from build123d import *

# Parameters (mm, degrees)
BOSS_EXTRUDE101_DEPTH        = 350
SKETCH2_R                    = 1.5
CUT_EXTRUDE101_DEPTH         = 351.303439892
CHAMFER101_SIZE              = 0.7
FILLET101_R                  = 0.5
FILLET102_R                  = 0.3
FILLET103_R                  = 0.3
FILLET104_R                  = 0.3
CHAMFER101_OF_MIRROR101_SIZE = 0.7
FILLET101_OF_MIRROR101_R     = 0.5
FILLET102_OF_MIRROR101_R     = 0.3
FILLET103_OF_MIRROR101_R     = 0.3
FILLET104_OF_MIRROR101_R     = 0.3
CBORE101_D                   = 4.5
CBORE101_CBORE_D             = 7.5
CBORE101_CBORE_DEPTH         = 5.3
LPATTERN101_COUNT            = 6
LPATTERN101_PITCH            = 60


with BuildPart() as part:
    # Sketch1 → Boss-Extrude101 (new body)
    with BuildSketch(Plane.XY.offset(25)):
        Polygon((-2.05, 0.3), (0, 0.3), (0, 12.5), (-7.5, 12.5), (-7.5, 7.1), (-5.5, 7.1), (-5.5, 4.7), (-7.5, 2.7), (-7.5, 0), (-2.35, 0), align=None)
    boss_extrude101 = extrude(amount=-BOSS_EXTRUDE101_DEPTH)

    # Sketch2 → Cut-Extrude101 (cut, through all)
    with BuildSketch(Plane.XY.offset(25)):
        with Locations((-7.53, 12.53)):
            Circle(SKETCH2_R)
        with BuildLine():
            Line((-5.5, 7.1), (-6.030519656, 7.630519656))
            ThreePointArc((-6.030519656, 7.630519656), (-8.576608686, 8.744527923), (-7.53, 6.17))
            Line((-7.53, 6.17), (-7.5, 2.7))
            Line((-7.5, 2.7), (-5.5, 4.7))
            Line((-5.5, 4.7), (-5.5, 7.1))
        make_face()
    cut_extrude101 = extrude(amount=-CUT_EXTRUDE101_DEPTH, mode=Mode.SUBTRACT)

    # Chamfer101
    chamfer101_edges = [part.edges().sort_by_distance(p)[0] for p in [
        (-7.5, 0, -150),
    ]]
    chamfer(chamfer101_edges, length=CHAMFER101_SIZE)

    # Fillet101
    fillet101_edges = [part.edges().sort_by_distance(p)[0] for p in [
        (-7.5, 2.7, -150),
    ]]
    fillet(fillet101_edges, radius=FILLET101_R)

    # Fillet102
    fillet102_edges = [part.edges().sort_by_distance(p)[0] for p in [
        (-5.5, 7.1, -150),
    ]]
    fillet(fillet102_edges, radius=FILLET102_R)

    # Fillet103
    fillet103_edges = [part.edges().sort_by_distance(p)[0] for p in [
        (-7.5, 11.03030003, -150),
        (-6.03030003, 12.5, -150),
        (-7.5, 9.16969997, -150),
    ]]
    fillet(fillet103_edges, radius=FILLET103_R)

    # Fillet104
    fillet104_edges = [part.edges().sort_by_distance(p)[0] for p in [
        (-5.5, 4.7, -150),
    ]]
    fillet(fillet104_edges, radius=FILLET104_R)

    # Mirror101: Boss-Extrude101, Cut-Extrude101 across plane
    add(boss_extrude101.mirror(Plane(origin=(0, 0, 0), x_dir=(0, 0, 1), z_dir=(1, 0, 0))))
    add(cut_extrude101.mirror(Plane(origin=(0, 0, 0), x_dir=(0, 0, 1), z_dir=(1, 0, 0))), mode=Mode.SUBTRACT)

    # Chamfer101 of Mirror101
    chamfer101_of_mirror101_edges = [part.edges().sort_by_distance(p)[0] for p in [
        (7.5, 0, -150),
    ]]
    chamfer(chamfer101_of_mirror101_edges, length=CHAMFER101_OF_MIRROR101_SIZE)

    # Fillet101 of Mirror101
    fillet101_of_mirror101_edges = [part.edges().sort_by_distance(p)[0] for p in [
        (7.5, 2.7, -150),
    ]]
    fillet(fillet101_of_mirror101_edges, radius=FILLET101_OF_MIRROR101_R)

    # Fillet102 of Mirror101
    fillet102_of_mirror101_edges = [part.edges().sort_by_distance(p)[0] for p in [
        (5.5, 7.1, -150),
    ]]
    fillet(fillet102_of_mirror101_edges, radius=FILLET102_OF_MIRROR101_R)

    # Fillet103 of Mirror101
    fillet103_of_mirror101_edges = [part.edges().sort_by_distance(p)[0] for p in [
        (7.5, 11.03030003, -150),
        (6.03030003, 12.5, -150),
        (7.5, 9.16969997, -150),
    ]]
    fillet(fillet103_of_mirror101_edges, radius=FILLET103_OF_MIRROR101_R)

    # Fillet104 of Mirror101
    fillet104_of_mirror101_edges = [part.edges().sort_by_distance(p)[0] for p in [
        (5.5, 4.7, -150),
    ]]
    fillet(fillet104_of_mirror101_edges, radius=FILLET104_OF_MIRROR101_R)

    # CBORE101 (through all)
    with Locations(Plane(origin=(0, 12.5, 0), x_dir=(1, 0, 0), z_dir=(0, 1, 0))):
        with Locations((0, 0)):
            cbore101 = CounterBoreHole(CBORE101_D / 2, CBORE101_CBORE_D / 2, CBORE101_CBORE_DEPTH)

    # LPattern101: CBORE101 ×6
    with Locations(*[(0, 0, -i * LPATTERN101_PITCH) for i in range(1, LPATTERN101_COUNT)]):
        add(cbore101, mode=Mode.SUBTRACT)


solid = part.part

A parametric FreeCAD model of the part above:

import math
import FreeCAD as App
import Part
import Sketcher

V = App.Vector
Q = App.Units.Quantity


def edges_at(feature, points):
    """Names of the edges that pass closest to the given points."""
    edges = feature.Shape.Edges
    near = lambda p: min(range(len(edges)), key=lambda i: edges[i].distToShape(Part.Vertex(*p))[0])
    return sorted({f"Edge{near(p) + 1}" for p in points})

doc = App.newDocument("Part")
body = doc.addObject("PartDesign::Body", "Body")

# Sketch on XY plane
sketch1 = doc.addObject("Sketcher::SketchObject", "Sketch")
body.addObject(sketch1)
sketch1.AttachmentSupport = (doc.XY_Plane, [""])
sketch1.MapMode = "FlatFace"
sketch1.AttachmentOffset = App.Placement(V(0, 0, 25), App.Rotation())
sketch1.addGeometry([
    Part.LineSegment(V(-2.05, 0.3, 0), V(0, 0.3, 0)),  # 0
    Part.LineSegment(V(0, 0.3, 0), V(0, 12.5, 0)),  # 1
    Part.LineSegment(V(0, 12.5, 0), V(-7.5, 12.5, 0)),  # 2
    Part.LineSegment(V(-7.5, 12.5, 0), V(-7.5, 7.1, 0)),  # 3
    Part.LineSegment(V(-7.5, 7.1, 0), V(-5.5, 7.1, 0)),  # 4
    Part.LineSegment(V(-5.5, 7.1, 0), V(-5.5, 4.7, 0)),  # 5
    Part.LineSegment(V(-5.5, 4.7, 0), V(-7.5, 2.7, 0)),  # 6
    Part.LineSegment(V(-7.5, 2.7, 0), V(-7.5, 0, 0)),  # 7
    Part.LineSegment(V(-7.5, 0, 0), V(-2.35, 0, 0)),  # 8
    Part.LineSegment(V(-2.35, 0, 0), V(-2.05, 0.3, 0)),  # 9
], False)
sketch1.addConstraint([
    Sketcher.Constraint("Coincident", 0, 2, 1, 1),
    Sketcher.Constraint("Coincident", 1, 2, 2, 1),
    Sketcher.Constraint("Coincident", 2, 2, 3, 1),
    Sketcher.Constraint("Coincident", 3, 2, 4, 1),
    Sketcher.Constraint("Coincident", 4, 2, 5, 1),
    Sketcher.Constraint("Coincident", 5, 2, 6, 1),
    Sketcher.Constraint("Coincident", 6, 2, 7, 1),
    Sketcher.Constraint("Coincident", 7, 2, 8, 1),
    Sketcher.Constraint("Coincident", 8, 2, 9, 1),
    Sketcher.Constraint("Coincident", 9, 2, 0, 1),
    Sketcher.Constraint("Horizontal", 0),
    Sketcher.Constraint("Vertical", 1),
    Sketcher.Constraint("Horizontal", 2),
    Sketcher.Constraint("Vertical", 3),
    Sketcher.Constraint("Horizontal", 4),
    Sketcher.Constraint("Vertical", 5),
    Sketcher.Constraint("Vertical", 7),
    Sketcher.Constraint("Horizontal", 8),
    Sketcher.Constraint("PointOnObject", 0, 2, -2),
    Sketcher.Constraint("PointOnObject", 7, 2, -1),
    Sketcher.Constraint("Parallel", 6, 9),
    Sketcher.Constraint("Vertical", 3, 2, 6, 2),
    Sketcher.Constraint("DistanceX", 4, 1, 4, 2, 2.0),
    Sketcher.Constraint("Angle", 6, Q("-135 deg")),
    Sketcher.Constraint("DistanceX", 2, 2, 2, 1, 7.5),
    Sketcher.Constraint("DistanceY", 1, 1, 1, 2, 12.2),
    Sketcher.Constraint("DistanceY", 3, 2, 3, 1, 5.4),
    Sketcher.Constraint("DistanceY", 5, 2, 5, 1, 2.4),
    Sketcher.Constraint("DistanceY", 7, 2, 7, 1, 2.7),
    Sketcher.Constraint("DistanceX", 0, 1, 0, 2, 2.05),
])
pad1 = doc.addObject("PartDesign::Pad", "Pad")
body.addObject(pad1)
pad1.Profile = sketch1
pad1.Length = 350
pad1.Reversed = True

# Sketch on XY plane
sketch2 = doc.addObject("Sketcher::SketchObject", "Sketch001")
body.addObject(sketch2)
sketch2.AttachmentSupport = (doc.XY_Plane, [""])
sketch2.MapMode = "FlatFace"
sketch2.AttachmentOffset = App.Placement(V(0, 0, 25), App.Rotation())
sketch2.addGeometry([
    Part.Circle(V(-7.53, 12.53, 0), V(0, 0, 1), 1.5),  # 0
    Part.LineSegment(V(-5.5, 7.1, 0), V(-6.03052, 7.63052, 0)),  # 1
    Part.ArcOfCircle(Part.Circle(V(-7.53, 7.67, 0), V(0, 0, 1), 1.5), math.radians(-1.508212), math.radians(270)),  # 2
    Part.LineSegment(V(-7.53, 6.17, 0), V(-7.5, 2.7, 0)),  # 3
    Part.LineSegment(V(-7.5, 2.7, 0), V(-5.5, 4.7, 0)),  # 4
    Part.LineSegment(V(-5.5, 4.7, 0), V(-5.5, 7.1, 0)),  # 5
], False)
sketch2.addConstraint([
    Sketcher.Constraint("Coincident", 1, 2, 2, 1),
    Sketcher.Constraint("Coincident", 2, 2, 3, 1),
    Sketcher.Constraint("Coincident", 3, 2, 4, 1),
    Sketcher.Constraint("Coincident", 4, 2, 5, 1),
    Sketcher.Constraint("Coincident", 5, 2, 1, 1),
    Sketcher.Constraint("Vertical", 5),
    Sketcher.Constraint("Equal", 0, 2),
    Sketcher.Constraint("Perpendicular", 1, 4),
    Sketcher.Constraint("Vertical", 0, 3, 2, 3),
    Sketcher.Constraint("Vertical", 0, 3, 2, 2),
    Sketcher.Constraint("Diameter", 0, 3.0),
    Sketcher.Constraint("Angle", 1, Q("135 deg")),
    Sketcher.Constraint("DistanceY", 5, 1, 5, 2, 2.4),
    Sketcher.Constraint("DistanceX", 3, 2, 4, 2, 2.0),
    Sketcher.Constraint("DistanceX", 3, 2, -1, 1, 7.5),
    Sketcher.Constraint("DistanceY", -1, 1, 3, 2, 2.7),
    Sketcher.Constraint("DistanceX", 0, 3, -1, 1, 7.53),
    Sketcher.Constraint("DistanceY", -1, 1, 0, 3, 12.53),
    Sketcher.Constraint("DistanceY", -1, 1, 2, 3, 7.67),
])
pocket1 = doc.addObject("PartDesign::Pocket", "Pocket")
body.addObject(pocket1)
pocket1.Profile = sketch2
pocket1.Type = "ThroughAll"
doc.recompute()

chamfer = doc.addObject("PartDesign::Chamfer", "Chamfer")
body.addObject(chamfer)
chamfer.Base = (pocket1, edges_at(pocket1, [(-7.5, 0, -150)]))
chamfer.Size = 0.7
doc.recompute()

fillet = doc.addObject("PartDesign::Fillet", "Fillet")
body.addObject(fillet)
fillet.Base = (chamfer, edges_at(chamfer, [(-7.5, 2.7, -150)]))
fillet.Radius = 0.5
doc.recompute()

fillet2 = doc.addObject("PartDesign::Fillet", "Fillet001")
body.addObject(fillet2)
fillet2.Base = (fillet, edges_at(fillet, [(-5.5, 7.1, -150)]))
fillet2.Radius = 0.3
doc.recompute()

fillet3 = doc.addObject("PartDesign::Fillet", "Fillet002")
body.addObject(fillet3)
fillet3.Base = (fillet2, edges_at(fillet2, [(-7.5, 11.03, -150), (-6.03, 12.5, -150), (-7.5, 9.17, -150)]))
fillet3.Radius = 0.3
doc.recompute()

fillet4 = doc.addObject("PartDesign::Fillet", "Fillet003")
body.addObject(fillet4)
fillet4.Base = (fillet3, edges_at(fillet3, [(-5.5, 4.7, -150)]))
fillet4.Radius = 0.3
doc.recompute()

mirrored = doc.addObject("PartDesign::Mirrored", "Mirrored")
body.addObject(mirrored)
mirrored.Originals = [pad1, pocket1]
mirrored.MirrorPlane = (doc.YZ_Plane, [""])
body.Tip = mirrored
doc.recompute()

chamfer2 = doc.addObject("PartDesign::Chamfer", "Chamfer001")
body.addObject(chamfer2)
chamfer2.Base = (mirrored, edges_at(mirrored, [(7.5, 0, -150)]))
chamfer2.Size = 0.7
doc.recompute()

fillet5 = doc.addObject("PartDesign::Fillet", "Fillet004")
body.addObject(fillet5)
fillet5.Base = (chamfer2, edges_at(chamfer2, [(7.5, 2.7, -150)]))
fillet5.Radius = 0.5
doc.recompute()

fillet6 = doc.addObject("PartDesign::Fillet", "Fillet005")
body.addObject(fillet6)
fillet6.Base = (fillet5, edges_at(fillet5, [(5.5, 7.1, -150)]))
fillet6.Radius = 0.3
doc.recompute()

fillet7 = doc.addObject("PartDesign::Fillet", "Fillet006")
body.addObject(fillet7)
fillet7.Base = (fillet6, edges_at(fillet6, [(7.5, 11.03, -150), (6.03, 12.5, -150), (7.5, 9.17, -150)]))
fillet7.Radius = 0.3
doc.recompute()

fillet8 = doc.addObject("PartDesign::Fillet", "Fillet007")
body.addObject(fillet8)
fillet8.Base = (fillet7, edges_at(fillet7, [(5.5, 4.7, -150)]))
fillet8.Radius = 0.3

# Sketch on XZ plane
sketch3 = doc.addObject("Sketcher::SketchObject", "Sketch002")
body.addObject(sketch3)
sketch3.AttachmentSupport = (doc.XZ_Plane, [""])
sketch3.MapMode = "FlatFace"
sketch3.AttachmentOffset = App.Placement(V(0, 0, -12.5), App.Rotation())
sketch3.addGeometry(Part.Circle(V(0, 0, 0), V(0, 0, 1), 2.25), False)
sketch3.addConstraint([
    Sketcher.Constraint("Coincident", 0, 3, -1, 1),
    Sketcher.Constraint("Diameter", 0, 4.5),
])
doc.recompute()
hole = doc.addObject("PartDesign::Hole", "Hole")
body.addObject(hole)
hole.Profile = sketch3
hole.ThreadType = "None"
hole.Diameter = 4.5
hole.DepthType = "ThroughAll"
hole.HoleCutType = "Counterbore"
hole.HoleCutDiameter = 7.5
hole.HoleCutDepth = 5.3
hole.Reversed = True
doc.recompute()

linearpattern = doc.addObject("PartDesign::LinearPattern", "LinearPattern")
body.addObject(linearpattern)
linearpattern.Originals = [hole]
linearpattern.Direction = (doc.Z_Axis, [""])
linearpattern.Mode = "offset"
linearpattern.Offset = 60
linearpattern.Occurrences = 6
linearpattern.Reversed = True
body.Tip = linearpattern

doc.recompute()
